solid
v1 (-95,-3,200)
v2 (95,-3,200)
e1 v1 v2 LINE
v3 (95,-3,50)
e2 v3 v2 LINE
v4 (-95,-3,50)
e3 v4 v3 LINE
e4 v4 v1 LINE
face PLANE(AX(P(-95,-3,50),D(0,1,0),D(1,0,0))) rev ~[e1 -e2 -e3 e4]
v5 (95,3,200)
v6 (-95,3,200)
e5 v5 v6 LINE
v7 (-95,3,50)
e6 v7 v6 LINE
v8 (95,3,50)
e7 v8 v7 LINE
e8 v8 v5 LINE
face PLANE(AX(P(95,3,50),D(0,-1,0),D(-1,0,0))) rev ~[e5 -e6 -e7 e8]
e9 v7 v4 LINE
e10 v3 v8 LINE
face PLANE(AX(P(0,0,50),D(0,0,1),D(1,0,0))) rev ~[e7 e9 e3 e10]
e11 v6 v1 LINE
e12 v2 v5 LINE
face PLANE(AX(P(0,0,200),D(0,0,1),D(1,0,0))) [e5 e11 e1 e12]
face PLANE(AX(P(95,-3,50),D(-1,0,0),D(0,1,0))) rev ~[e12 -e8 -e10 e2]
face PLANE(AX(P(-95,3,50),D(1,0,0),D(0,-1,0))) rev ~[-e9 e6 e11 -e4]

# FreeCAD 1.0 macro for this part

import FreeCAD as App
import Part
import Sketcher
from FreeCAD import Vector


def add_polygon(sketch, points):
    """Adds a closed chain of lines whose ends are joined by coincident constraints."""
    first, n = sketch.GeometryCount, len(points)
    for a, b in zip(points, points[1:] + points[:1]):
        sketch.addGeometry(Part.LineSegment(App.Vector(*a, 0), App.Vector(*b, 0)), False)
    for i in range(n):
        sketch.addConstraint(Sketcher.Constraint("Coincident", first + i, 2, first + (i + 1) % n, 1))

doc = App.newDocument("Part")
body = doc.addObject("PartDesign::Body", "Body")

# Sketch on XY plane
sketch1 = doc.addObject("Sketcher::SketchObject", "Sketch")
body.addObject(sketch1)
sketch1.AttachmentSupport = (doc.XY_Plane, [""])
sketch1.MapMode = "FlatFace"
sketch1.AttachmentOffset = App.Placement(Vector(0, 0, 50), App.Rotation())
add_polygon(sketch1, [(95, -3), (95, 3), (-95, 3), (-95, -3)])  # lines 0-3
sketch1.addConstraint(Sketcher.Constraint("Vertical", 0))
sketch1.addConstraint(Sketcher.Constraint("Horizontal", 1))
sketch1.addConstraint(Sketcher.Constraint("Vertical", 2))
sketch1.addConstraint(Sketcher.Constraint("Horizontal", 3))
sketch1.addConstraint(Sketcher.Constraint("Symmetric", 0, 2, 2, 2, -1, 1))
sketch1.addConstraint(Sketcher.Constraint("DistanceX", 1, 2, 1, 1, 190.0))
sketch1.addConstraint(Sketcher.Constraint("DistanceY", 0, 1, 0, 2, 6.0))
pad1 = doc.addObject("PartDesign::Pad", "Pad")
body.addObject(pad1)
pad1.Profile = sketch1
pad1.Length = 150

doc.recompute()
